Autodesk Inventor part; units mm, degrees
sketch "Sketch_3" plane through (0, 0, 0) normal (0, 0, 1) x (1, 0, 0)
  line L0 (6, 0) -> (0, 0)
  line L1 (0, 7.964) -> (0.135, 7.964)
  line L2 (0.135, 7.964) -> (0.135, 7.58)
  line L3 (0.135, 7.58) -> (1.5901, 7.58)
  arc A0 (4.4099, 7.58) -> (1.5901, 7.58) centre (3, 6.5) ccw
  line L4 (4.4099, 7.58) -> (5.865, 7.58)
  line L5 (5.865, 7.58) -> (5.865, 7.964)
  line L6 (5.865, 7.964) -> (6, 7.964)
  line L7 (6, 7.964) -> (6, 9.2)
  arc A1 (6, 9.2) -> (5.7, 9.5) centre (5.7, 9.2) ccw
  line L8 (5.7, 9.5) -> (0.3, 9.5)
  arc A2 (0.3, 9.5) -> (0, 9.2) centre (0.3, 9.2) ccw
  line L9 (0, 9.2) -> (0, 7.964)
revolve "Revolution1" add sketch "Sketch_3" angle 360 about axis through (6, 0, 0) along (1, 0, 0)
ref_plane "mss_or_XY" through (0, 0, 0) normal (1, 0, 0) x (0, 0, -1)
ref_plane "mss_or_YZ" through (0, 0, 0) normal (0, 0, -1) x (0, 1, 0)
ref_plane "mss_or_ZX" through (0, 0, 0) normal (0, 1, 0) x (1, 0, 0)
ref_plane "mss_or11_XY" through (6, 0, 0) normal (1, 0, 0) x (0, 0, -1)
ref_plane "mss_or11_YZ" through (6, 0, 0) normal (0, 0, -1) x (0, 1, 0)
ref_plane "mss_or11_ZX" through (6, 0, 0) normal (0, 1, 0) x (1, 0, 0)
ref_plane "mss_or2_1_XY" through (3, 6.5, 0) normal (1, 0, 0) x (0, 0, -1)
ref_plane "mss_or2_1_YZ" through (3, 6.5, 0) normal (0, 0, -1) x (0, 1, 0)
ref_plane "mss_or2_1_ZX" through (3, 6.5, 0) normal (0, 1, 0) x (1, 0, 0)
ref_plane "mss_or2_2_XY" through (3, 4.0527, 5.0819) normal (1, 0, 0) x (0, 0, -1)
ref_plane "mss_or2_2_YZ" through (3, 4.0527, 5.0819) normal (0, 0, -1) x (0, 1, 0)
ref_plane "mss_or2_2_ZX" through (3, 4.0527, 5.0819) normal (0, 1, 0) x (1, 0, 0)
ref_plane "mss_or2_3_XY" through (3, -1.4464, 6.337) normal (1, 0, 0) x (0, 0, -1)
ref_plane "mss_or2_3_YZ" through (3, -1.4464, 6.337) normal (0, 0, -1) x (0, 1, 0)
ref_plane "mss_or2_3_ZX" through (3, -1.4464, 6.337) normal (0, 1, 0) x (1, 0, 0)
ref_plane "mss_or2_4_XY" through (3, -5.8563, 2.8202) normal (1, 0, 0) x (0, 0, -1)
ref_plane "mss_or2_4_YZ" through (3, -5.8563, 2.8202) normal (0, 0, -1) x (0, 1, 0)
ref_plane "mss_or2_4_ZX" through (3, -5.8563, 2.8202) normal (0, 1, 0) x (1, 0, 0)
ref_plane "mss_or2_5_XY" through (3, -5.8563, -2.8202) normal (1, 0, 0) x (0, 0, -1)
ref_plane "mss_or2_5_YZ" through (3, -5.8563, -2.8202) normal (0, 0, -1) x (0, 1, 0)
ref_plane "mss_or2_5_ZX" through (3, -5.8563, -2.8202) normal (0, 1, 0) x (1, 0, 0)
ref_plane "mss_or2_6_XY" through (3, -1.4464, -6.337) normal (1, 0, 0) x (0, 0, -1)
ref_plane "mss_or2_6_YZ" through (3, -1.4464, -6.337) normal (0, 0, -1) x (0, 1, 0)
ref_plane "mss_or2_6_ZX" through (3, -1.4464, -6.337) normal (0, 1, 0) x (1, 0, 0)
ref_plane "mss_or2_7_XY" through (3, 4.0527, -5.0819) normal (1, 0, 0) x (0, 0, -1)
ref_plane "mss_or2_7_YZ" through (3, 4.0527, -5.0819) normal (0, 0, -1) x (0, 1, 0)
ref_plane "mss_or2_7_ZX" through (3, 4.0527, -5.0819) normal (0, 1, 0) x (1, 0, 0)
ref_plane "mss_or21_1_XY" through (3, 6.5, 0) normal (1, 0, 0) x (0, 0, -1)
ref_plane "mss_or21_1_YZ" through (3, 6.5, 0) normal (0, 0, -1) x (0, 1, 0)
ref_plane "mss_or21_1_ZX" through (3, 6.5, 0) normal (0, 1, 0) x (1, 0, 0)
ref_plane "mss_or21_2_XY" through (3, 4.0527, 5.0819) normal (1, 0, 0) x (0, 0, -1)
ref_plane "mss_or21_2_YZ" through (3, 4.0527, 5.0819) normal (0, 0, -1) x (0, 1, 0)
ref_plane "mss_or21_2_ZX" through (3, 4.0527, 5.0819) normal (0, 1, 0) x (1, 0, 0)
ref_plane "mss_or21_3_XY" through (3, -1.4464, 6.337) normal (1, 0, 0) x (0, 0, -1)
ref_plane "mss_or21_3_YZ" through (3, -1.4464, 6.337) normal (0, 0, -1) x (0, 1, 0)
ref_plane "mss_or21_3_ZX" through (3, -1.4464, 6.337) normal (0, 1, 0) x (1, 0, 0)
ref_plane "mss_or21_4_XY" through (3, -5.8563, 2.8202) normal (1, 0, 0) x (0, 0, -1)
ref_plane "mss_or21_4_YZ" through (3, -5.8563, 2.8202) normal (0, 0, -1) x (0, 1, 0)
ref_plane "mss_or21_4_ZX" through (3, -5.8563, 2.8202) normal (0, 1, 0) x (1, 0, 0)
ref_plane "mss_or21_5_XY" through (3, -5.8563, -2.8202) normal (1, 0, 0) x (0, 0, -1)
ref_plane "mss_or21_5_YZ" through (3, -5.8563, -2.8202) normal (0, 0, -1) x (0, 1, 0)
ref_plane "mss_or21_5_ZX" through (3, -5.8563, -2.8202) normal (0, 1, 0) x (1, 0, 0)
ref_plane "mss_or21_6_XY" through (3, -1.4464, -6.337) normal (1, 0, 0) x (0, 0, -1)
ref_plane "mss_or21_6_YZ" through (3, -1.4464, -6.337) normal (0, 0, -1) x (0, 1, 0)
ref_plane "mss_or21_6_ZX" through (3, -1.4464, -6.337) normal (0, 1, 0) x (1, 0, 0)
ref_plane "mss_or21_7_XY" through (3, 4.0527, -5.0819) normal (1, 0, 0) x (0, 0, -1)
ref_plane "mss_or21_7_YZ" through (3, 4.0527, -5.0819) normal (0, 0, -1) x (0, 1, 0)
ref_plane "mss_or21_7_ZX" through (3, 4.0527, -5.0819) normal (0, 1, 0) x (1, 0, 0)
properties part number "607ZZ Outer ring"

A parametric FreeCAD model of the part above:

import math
import FreeCAD as App
import Part
import Sketcher

V = App.Vector
Q = App.Units.Quantity

doc = App.newDocument("Part")
params = doc.addObject("Spreadsheet::Sheet", "Params")
for row, (alias, value) in enumerate([
    ("sketch1_radius", "0.3 mm"),
    ("sketch1_width", "5.4 mm"),
    ("revolution_angle", "360 deg"),
], start=1):
    params.set(f"A{row}", alias)
    params.set(f"B{row}", "=" + value)
    params.setAlias(f"B{row}", alias)

body = doc.addObject("PartDesign::Body", "Body")

# Sketch on XY plane
sketch1 = doc.addObject("Sketcher::SketchObject", "Sketch")
body.addObject(sketch1)
sketch1.AttachmentSupport = (doc.XY_Plane, [""])
sketch1.MapMode = "FlatFace"
sketch1.addGeometry([
    Part.LineSegment(V(0, 9.2, 0), V(0, 7.96, 0)),  # 0
    Part.LineSegment(V(0, 7.96, 0), V(0.14, 7.96, 0)),  # 1
    Part.LineSegment(V(0.14, 7.96, 0), V(0.14, 7.58, 0)),  # 2
    Part.LineSegment(V(0.14, 7.58, 0), V(1.59, 7.58, 0)),  # 3
    Part.ArcOfCircle(Part.Circle(V(3, 6.5, 0), V(0, 0, 1), 1.78), math.radians(37), math.radians(143)),  # 4
    Part.LineSegment(V(4.41, 7.58, 0), V(5.87, 7.58, 0)),  # 5
    Part.LineSegment(V(5.87, 7.58, 0), V(5.87, 7.96, 0)),  # 6
    Part.LineSegment(V(5.87, 7.96, 0), V(6, 7.96, 0)),  # 7
    Part.LineSegment(V(6, 7.96, 0), V(6, 9.2, 0)),  # 8
    Part.ArcOfCircle(Part.Circle(V(5.7, 9.2, 0), V(0, 0, 1), 0.3), math.radians(0), math.radians(90)),  # 9
    Part.LineSegment(V(5.7, 9.5, 0), V(0.3, 9.5, 0)),  # 10
    Part.ArcOfCircle(Part.Circle(V(0.3, 9.2, 0), V(0, 0, 1), 0.3), math.radians(90), math.radians(180)),  # 11
], False)
sketch1.addConstraint([
    Sketcher.Constraint("Coincident", 0, 2, 1, 1),
    Sketcher.Constraint("Coincident", 1, 2, 2, 1),
    Sketcher.Constraint("Coincident", 2, 2, 3, 1),
    Sketcher.Constraint("Coincident", 3, 2, 4, 2),
    Sketcher.Constraint("Coincident", 4, 1, 5, 1),
    Sketcher.Constraint("Coincident", 5, 2, 6, 1),
    Sketcher.Constraint("Coincident", 6, 2, 7, 1),
    Sketcher.Constraint("Coincident", 7, 2, 8, 1),
    Sketcher.Constraint("Tangent", 8, 2, 9, 1),
    Sketcher.Constraint("Tangent", 9, 2, 10, 1),
    Sketcher.Constraint("Tangent", 10, 2, 11, 1),
    Sketcher.Constraint("Tangent", 11, 2, 0, 1),
    Sketcher.Constraint("Vertical", 0),
    Sketcher.Constraint("Horizontal", 1),
    Sketcher.Constraint("Vertical", 2),
    Sketcher.Constraint("Horizontal", 3),
    Sketcher.Constraint("Horizontal", 5),
    Sketcher.Constraint("Vertical", 6),
    Sketcher.Constraint("Horizontal", 7),
    Sketcher.Constraint("Vertical", 8),
    Sketcher.Constraint("Horizontal", 10),
    Sketcher.Constraint("Equal", 9, 11),
    Sketcher.Constraint("PointOnObject", 0, 2, -2),
    Sketcher.Constraint("Horizontal", 3, 2, 4, 1),
    Sketcher.Constraint("Horizontal", 1, 2, 6, 2),
    Sketcher.Constraint("Equal", 3, 5),
    Sketcher.Constraint("Equal", 1, 7),
    Sketcher.Constraint("Radius", 9, Q("0.3 mm")),
    Sketcher.Constraint("DistanceX", 10, 2, 10, 1, Q("5.4 mm")),
    Sketcher.Constraint("Radius", 4, Q("1.776 mm")),
    Sketcher.Constraint("DistanceY", -1, 1, 4, 3, Q("6.5 mm")),
    Sketcher.Constraint("DistanceY", -1, 1, 9, 3, Q("9.2 mm")),
    Sketcher.Constraint("DistanceX", 1, 1, 1, 2, Q("0.135 mm")),
    Sketcher.Constraint("DistanceX", 3, 1, 3, 2, Q("1.455 mm")),
    Sketcher.Constraint("DistanceY", 0, 2, 0, 1, Q("1.236 mm")),
])
sketch1.setExpression("Constraints[27]", "Params.sketch1_radius")
sketch1.setExpression("Constraints[28]", "Params.sketch1_width")
revolution = doc.addObject("PartDesign::Revolution", "Revolution")
body.addObject(revolution)
revolution.Profile = sketch1
revolution.ReferenceAxis = (sketch1, ["H_Axis"])
revolution.setExpression("Angle", "Params.revolution_angle")

doc.recompute()
